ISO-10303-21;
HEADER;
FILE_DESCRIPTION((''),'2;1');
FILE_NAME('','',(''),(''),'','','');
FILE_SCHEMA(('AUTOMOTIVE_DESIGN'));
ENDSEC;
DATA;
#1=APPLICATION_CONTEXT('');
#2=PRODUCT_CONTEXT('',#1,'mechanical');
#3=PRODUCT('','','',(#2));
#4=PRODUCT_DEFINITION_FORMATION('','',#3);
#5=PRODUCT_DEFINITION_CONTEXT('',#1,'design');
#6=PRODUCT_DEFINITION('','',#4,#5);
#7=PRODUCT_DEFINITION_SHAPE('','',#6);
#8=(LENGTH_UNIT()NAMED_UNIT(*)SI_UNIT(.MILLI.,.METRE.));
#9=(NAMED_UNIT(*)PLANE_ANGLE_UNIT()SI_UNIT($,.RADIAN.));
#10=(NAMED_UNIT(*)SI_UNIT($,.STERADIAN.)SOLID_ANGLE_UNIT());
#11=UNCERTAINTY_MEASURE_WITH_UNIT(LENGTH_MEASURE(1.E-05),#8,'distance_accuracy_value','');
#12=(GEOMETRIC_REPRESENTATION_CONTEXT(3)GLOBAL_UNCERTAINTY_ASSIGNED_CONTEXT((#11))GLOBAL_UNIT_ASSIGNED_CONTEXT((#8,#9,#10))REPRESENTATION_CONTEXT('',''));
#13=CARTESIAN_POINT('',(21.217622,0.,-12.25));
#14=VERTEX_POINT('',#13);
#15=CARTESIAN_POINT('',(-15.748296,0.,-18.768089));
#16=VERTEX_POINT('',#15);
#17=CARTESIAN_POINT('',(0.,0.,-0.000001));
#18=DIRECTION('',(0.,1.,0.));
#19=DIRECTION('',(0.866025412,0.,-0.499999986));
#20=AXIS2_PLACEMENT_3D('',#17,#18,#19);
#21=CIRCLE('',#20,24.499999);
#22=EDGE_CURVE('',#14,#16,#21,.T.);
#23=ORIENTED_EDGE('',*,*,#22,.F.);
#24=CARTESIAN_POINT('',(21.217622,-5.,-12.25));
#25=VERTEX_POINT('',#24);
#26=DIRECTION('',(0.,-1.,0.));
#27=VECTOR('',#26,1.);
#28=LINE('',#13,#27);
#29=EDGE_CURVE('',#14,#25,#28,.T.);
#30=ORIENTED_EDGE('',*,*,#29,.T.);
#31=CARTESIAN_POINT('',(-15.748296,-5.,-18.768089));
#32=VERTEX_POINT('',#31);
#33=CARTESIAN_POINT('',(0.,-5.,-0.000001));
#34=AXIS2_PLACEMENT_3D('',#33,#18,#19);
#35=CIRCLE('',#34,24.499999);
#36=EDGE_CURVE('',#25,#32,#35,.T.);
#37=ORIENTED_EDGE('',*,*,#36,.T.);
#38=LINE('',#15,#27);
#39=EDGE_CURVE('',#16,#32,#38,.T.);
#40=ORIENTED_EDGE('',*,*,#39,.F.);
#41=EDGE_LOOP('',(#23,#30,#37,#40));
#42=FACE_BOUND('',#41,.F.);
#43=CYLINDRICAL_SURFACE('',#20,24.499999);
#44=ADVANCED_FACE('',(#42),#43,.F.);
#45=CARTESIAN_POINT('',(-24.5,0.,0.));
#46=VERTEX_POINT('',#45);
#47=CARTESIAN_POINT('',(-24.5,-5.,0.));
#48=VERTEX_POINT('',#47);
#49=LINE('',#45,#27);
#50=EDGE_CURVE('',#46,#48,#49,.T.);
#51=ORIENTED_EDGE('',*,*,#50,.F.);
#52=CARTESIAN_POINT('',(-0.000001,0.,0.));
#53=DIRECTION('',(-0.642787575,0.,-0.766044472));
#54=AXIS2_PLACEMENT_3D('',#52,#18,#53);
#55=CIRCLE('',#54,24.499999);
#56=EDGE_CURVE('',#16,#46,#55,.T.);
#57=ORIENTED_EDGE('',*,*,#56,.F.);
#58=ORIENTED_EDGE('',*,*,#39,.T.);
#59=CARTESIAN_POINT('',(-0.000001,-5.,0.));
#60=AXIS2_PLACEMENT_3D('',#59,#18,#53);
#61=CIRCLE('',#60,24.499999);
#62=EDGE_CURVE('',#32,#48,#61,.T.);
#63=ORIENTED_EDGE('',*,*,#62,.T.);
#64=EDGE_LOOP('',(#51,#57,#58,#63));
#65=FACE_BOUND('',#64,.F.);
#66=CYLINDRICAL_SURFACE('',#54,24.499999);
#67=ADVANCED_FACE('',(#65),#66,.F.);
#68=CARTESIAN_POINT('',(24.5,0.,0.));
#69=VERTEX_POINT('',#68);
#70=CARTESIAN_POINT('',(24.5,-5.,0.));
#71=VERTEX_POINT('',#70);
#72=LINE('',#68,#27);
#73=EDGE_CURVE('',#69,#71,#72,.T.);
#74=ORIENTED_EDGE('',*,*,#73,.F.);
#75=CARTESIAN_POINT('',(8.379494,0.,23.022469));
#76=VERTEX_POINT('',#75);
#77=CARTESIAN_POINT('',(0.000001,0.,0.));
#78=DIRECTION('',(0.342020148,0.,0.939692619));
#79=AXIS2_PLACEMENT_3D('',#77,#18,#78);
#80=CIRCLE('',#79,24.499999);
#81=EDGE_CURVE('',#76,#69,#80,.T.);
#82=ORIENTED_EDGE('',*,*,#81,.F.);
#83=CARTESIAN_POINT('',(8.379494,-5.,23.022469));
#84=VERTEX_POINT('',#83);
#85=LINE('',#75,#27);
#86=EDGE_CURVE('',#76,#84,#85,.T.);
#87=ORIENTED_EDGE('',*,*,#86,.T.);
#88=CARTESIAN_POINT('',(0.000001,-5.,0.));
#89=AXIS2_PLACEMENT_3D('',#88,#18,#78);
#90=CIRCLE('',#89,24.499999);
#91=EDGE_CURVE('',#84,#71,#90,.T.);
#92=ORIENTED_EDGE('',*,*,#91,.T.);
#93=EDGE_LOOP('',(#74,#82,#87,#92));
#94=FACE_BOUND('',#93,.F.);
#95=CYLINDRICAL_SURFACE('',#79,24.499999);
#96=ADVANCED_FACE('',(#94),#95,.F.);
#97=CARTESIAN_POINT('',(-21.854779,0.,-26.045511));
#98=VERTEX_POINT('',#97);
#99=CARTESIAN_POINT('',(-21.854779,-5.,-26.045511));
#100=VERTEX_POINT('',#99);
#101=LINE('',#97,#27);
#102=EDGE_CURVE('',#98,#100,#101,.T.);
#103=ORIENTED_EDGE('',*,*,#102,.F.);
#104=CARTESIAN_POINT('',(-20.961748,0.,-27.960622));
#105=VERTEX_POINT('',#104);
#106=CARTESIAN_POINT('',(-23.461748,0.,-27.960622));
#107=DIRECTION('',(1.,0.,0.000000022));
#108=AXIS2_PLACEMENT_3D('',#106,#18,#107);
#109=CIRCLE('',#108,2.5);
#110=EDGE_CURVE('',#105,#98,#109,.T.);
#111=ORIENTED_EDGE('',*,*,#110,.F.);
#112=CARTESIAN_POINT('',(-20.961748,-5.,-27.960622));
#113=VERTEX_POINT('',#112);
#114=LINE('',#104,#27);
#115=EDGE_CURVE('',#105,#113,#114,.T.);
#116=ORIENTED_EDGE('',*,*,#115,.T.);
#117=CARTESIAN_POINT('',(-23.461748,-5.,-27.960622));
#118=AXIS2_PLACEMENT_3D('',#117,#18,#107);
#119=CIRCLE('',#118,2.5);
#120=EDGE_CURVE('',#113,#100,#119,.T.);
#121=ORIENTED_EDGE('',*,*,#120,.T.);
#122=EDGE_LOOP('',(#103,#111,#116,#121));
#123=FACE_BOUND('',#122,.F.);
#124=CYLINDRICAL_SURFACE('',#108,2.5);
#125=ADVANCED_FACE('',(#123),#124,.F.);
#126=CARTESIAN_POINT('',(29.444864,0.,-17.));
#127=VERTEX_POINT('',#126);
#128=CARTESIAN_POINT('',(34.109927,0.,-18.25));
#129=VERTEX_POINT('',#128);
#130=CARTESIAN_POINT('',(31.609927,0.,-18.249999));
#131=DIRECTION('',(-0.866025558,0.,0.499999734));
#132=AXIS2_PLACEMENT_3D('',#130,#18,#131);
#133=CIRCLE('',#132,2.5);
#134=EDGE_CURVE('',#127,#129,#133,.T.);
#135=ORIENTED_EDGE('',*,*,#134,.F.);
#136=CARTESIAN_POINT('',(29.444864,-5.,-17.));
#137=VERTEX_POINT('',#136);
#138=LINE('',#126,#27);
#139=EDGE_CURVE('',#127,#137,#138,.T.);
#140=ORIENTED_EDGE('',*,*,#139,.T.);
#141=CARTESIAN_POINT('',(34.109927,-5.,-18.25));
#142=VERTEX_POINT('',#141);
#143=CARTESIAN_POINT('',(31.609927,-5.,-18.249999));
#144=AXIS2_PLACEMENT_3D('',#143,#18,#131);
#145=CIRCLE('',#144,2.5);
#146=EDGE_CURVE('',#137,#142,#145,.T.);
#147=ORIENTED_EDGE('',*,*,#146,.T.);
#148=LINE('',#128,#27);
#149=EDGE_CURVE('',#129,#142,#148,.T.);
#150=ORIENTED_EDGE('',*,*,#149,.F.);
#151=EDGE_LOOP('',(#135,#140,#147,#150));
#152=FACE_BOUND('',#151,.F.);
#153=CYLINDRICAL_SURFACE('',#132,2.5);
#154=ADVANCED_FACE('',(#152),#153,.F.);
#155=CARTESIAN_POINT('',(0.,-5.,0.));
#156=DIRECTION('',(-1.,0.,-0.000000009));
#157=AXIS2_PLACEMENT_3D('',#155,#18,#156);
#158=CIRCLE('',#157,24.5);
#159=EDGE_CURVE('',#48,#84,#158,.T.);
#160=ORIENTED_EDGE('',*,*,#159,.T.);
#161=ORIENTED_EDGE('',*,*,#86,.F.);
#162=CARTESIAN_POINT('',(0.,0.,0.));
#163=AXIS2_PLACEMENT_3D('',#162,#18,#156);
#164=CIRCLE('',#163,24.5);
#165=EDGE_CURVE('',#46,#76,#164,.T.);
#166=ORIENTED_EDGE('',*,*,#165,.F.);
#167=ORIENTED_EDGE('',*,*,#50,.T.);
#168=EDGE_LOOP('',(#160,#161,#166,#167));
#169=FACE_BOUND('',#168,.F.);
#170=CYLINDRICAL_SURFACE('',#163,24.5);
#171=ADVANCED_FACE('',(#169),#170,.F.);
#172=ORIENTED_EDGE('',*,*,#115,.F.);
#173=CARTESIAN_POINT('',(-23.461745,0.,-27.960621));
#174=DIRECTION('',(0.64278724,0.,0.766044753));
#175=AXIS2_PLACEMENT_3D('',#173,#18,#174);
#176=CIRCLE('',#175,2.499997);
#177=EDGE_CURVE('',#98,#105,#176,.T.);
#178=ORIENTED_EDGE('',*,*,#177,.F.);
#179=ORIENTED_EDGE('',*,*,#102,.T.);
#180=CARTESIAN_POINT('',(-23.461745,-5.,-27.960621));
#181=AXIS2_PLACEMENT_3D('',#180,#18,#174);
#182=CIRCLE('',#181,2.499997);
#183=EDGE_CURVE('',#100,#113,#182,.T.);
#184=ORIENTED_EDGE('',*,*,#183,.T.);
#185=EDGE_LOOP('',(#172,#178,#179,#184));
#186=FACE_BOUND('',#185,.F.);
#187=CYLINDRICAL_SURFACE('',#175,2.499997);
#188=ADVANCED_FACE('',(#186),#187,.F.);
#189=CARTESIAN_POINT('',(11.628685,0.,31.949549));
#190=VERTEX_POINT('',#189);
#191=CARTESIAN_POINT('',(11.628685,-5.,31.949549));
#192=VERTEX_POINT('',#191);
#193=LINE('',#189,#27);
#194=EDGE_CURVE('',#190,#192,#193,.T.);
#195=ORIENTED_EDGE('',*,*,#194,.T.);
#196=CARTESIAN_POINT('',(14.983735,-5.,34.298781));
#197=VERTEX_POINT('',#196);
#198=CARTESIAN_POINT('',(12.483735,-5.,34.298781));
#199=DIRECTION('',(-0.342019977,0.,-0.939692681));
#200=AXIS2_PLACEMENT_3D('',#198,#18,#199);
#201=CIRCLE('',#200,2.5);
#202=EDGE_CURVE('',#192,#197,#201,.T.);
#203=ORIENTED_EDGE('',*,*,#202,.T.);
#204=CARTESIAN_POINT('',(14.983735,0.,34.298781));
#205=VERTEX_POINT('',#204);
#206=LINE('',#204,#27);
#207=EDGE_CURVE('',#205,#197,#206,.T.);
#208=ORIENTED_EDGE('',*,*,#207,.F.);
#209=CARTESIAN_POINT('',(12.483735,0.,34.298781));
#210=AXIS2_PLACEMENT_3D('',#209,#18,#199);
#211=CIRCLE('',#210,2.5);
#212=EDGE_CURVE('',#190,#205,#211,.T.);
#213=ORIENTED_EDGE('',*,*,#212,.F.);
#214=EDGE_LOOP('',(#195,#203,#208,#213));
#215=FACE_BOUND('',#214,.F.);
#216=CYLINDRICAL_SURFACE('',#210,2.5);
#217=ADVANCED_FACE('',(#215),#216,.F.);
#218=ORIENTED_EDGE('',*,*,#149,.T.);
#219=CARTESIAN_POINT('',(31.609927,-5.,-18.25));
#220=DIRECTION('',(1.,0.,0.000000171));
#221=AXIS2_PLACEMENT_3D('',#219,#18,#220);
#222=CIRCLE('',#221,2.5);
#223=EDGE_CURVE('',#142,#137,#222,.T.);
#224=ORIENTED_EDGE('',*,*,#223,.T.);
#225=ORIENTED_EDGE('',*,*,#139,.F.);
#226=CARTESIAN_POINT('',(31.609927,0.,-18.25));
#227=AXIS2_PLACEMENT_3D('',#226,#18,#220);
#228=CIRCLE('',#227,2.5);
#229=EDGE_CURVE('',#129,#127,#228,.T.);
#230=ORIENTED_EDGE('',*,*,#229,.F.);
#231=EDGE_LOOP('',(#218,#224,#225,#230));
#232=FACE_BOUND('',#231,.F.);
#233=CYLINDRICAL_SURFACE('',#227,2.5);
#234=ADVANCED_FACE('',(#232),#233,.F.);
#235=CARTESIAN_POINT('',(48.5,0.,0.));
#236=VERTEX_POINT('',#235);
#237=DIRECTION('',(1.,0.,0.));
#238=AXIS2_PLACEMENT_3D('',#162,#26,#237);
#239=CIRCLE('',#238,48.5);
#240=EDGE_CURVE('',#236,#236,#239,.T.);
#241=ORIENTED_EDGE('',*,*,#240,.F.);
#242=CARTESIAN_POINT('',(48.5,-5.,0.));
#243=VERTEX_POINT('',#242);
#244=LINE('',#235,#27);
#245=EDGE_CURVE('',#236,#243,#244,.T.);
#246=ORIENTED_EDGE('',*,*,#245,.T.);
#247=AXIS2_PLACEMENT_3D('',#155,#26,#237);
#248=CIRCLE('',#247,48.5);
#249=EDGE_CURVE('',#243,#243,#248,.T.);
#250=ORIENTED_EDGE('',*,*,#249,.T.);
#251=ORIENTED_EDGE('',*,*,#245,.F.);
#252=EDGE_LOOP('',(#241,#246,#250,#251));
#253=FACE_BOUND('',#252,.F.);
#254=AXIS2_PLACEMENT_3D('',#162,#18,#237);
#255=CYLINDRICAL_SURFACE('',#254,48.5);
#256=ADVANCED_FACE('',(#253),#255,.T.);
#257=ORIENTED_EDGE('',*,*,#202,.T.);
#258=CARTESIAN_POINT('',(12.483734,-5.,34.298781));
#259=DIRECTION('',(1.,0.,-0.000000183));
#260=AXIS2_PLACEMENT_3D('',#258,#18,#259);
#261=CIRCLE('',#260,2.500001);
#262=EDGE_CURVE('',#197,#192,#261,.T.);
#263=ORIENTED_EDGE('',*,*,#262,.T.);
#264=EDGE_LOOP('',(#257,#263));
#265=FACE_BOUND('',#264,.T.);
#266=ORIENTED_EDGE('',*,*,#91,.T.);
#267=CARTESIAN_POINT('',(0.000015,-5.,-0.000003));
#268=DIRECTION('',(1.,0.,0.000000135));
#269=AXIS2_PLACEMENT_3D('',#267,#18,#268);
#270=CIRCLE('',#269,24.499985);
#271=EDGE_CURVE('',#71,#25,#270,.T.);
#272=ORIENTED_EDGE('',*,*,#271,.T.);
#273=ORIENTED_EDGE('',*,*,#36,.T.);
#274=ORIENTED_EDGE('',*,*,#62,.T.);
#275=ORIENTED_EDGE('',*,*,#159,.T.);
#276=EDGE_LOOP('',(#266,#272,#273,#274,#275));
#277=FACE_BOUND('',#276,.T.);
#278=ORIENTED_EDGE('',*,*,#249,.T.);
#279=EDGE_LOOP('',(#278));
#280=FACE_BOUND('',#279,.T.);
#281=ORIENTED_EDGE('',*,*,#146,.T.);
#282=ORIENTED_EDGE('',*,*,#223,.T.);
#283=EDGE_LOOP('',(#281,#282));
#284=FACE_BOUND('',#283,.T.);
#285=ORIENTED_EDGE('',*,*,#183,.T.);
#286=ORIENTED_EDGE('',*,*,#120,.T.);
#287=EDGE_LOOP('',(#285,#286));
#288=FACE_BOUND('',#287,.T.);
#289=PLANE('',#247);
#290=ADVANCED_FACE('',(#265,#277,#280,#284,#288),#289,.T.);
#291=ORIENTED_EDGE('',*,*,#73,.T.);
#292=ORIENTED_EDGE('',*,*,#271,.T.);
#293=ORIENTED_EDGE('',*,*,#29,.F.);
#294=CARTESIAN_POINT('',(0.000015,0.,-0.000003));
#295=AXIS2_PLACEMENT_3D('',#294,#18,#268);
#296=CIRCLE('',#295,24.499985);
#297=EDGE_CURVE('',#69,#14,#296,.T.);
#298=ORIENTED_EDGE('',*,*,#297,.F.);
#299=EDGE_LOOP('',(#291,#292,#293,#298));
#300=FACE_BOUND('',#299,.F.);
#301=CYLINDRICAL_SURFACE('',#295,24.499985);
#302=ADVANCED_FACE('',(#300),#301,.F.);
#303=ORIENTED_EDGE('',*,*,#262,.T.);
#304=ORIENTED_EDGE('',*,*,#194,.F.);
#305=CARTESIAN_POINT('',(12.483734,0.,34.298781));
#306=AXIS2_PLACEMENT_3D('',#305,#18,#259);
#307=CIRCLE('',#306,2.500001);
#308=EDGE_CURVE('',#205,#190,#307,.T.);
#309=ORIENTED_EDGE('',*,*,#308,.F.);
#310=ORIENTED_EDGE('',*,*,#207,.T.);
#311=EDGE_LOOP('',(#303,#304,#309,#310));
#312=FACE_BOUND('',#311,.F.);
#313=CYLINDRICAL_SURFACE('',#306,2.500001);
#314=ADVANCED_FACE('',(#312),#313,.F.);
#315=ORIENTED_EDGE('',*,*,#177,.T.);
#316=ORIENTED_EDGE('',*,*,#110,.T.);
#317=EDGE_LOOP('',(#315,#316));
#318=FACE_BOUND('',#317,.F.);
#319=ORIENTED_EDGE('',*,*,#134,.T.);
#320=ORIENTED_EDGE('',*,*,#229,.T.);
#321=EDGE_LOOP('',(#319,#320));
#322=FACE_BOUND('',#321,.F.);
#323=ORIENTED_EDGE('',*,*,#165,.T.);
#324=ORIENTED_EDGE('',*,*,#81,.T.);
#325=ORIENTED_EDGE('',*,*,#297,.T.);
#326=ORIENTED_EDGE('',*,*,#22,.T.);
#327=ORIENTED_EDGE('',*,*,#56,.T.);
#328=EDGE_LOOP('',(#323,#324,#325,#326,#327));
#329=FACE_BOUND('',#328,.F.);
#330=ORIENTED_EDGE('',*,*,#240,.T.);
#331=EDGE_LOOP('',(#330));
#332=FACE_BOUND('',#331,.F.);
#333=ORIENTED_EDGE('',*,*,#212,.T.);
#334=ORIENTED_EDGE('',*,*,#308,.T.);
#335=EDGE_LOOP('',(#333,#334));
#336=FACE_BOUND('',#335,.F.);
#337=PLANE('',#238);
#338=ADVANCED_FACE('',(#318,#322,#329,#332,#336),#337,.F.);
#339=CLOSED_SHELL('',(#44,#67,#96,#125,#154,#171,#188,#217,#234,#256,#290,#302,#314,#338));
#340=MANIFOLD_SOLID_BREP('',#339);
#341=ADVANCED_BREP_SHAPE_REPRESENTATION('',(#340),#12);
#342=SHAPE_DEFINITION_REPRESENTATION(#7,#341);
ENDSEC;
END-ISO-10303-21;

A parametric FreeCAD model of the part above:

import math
import FreeCAD as App
import Part
import Sketcher

doc = App.newDocument("Part")
params = doc.addObject("Spreadsheet::Sheet", "Params")
for row, (alias, value) in enumerate([
    ("sketch1_diameter", "97 mm"),
    ("sketch1_radius", "2.5 mm"),
    ("sketch1_radius2", "24.499999 mm"),
    ("pad1_length", "5 mm"),
], start=1):
    params.set(f"A{row}", alias)
    params.set(f"B{row}", "=" + value)
    params.setAlias(f"B{row}", alias)

body = doc.addObject("PartDesign::Body", "Body")

sketch1 = body.newObject("Sketcher::SketchObject", "Sketch")
sketch1.AttachmentSupport = (doc.getObject("XZ_Plane"), [""])
sketch1.MapMode = "FlatFace"
sketch1.addGeometry([
    Part.Circle(App.Vector(0, 0, 0), App.Vector(0, 0, 1), 48.5),
    Part.ArcOfCircle(Part.Circle(App.Vector(-23.5, -28, 0), App.Vector(0, 0, 1), 2.5), math.radians(0), math.radians(50)),
    Part.ArcOfCircle(Part.Circle(App.Vector(-23.5, -28, 0), App.Vector(0, 0, 1), 2.5), math.radians(50), math.radians(360)),
    Part.ArcOfCircle(Part.Circle(App.Vector(0, 0, 0), App.Vector(0, 0, 1), 24.5), math.radians(-130), math.radians(-30)),
    Part.ArcOfCircle(Part.Circle(App.Vector(0, 0, 0), App.Vector(0, 0, 1), 24.5), math.radians(180), math.radians(230)),
    Part.ArcOfCircle(Part.Circle(App.Vector(0, 0, 0), App.Vector(0, 0, 1), 24.5), math.radians(70), math.radians(180)),
    Part.ArcOfCircle(Part.Circle(App.Vector(0, 0, 0), App.Vector(0, 0, 1), 24.5), math.radians(0), math.radians(70)),
    Part.ArcOfCircle(Part.Circle(App.Vector(0, 0, 0), App.Vector(0, 0, 1), 24.5), math.radians(-30), math.radians(0)),
    Part.ArcOfCircle(Part.Circle(App.Vector(31.6, -18.2, 0), App.Vector(0, 0, 1), 2.5), math.radians(0), math.radians(150)),
    Part.ArcOfCircle(Part.Circle(App.Vector(31.6, -18.3, 0), App.Vector(0, 0, 1), 2.5), math.radians(150), math.radians(360)),
    Part.ArcOfCircle(Part.Circle(App.Vector(12.5, 34.3, 0), App.Vector(0, 0, 1), 2.5), math.radians(0), math.radians(250)),
    Part.ArcOfCircle(Part.Circle(App.Vector(12.5, 34.3, 0), App.Vector(0, 0, 1), 2.5), math.radians(-110), math.radians(0)),
], False)
sketch1.addConstraint([
    Sketcher.Constraint("Tangent", 1, 1, 2, 2),
    Sketcher.Constraint("Coincident", 2, 1, 1, 2),
    Sketcher.Constraint("Tangent", 3, 1, 4, 2),
    Sketcher.Constraint("Tangent", 4, 1, 5, 2),
    Sketcher.Constraint("Tangent", 5, 1, 6, 2),
    Sketcher.Constraint("Tangent", 6, 1, 7, 2),
    Sketcher.Constraint("Tangent", 7, 1, 3, 2),
    Sketcher.Constraint("Tangent", 8, 1, 9, 2),
    Sketcher.Constraint("Coincident", 9, 1, 8, 2),
    Sketcher.Constraint("Tangent", 10, 1, 11, 2),
    Sketcher.Constraint("Coincident", 11, 1, 10, 2),
    Sketcher.Constraint("Coincident", 0, 3, -1, 1),
    Sketcher.Constraint("Coincident", 3, 3, -1, 1),
    Sketcher.Constraint("Coincident", 5, 3, -1, 1),
    Sketcher.Constraint("Equal", 2, 8),
    Sketcher.Constraint("Equal", 9, 10),
    Sketcher.Constraint("PointOnObject", 4, 1, -1),
    Sketcher.Constraint("PointOnObject", 6, 1, -1),
    Sketcher.Constraint("Horizontal", 2, 3, 1, 1),
    Sketcher.Constraint("Horizontal", 9, 3, 8, 1),
    Sketcher.Constraint("Horizontal", 11, 3, 10, 1),
    Sketcher.Constraint("Diameter", 0, 97.0),
    Sketcher.Constraint("Radius", 2, 2.5),
    Sketcher.Constraint("Radius", 3, 24.499999),
    Sketcher.Constraint("DistanceY", 9, 1, -1, 1, 17.0),
    Sketcher.Constraint("DistanceY", 8, 3, 7, 1, 5.999999),
    Sketcher.Constraint("DistanceY", 8, 3, -1, 1, 18.249999),
    Sketcher.Constraint("DistanceY", 1, 3, -1, 1, 27.960621),
    Sketcher.Constraint("DistanceY", -1, 1, 10, 3, 34.298781),
    Sketcher.Constraint("DistanceX", 1, 1, -1, 1, 20.961748),
    Sketcher.Constraint("DistanceX", 2, 1, -1, 1, 21.854779),
    Sketcher.Constraint("DistanceY", 3, 1, -1, 1, 18.768089),
    Sketcher.Constraint("DistanceY", -1, 1, 5, 1, 23.022469),
    Sketcher.Constraint("DistanceY", -1, 1, 11, 1, 31.949549),
    Sketcher.Constraint("DistanceX", 7, 3, 10, 3, 12.48372),
    Sketcher.Constraint("DistanceX", -1, 1, 8, 3, 31.609927),
])
sketch1.setExpression("Constraints[21]", "Params.sketch1_diameter")
sketch1.setExpression("Constraints[22]", "Params.sketch1_radius")
sketch1.setExpression("Constraints[23]", "Params.sketch1_radius2")
pad1 = body.newObject("PartDesign::Pad", "Pad")
pad1.Profile = sketch1
pad1.setExpression("Length", "Params.pad1_length")

doc.recompute()
